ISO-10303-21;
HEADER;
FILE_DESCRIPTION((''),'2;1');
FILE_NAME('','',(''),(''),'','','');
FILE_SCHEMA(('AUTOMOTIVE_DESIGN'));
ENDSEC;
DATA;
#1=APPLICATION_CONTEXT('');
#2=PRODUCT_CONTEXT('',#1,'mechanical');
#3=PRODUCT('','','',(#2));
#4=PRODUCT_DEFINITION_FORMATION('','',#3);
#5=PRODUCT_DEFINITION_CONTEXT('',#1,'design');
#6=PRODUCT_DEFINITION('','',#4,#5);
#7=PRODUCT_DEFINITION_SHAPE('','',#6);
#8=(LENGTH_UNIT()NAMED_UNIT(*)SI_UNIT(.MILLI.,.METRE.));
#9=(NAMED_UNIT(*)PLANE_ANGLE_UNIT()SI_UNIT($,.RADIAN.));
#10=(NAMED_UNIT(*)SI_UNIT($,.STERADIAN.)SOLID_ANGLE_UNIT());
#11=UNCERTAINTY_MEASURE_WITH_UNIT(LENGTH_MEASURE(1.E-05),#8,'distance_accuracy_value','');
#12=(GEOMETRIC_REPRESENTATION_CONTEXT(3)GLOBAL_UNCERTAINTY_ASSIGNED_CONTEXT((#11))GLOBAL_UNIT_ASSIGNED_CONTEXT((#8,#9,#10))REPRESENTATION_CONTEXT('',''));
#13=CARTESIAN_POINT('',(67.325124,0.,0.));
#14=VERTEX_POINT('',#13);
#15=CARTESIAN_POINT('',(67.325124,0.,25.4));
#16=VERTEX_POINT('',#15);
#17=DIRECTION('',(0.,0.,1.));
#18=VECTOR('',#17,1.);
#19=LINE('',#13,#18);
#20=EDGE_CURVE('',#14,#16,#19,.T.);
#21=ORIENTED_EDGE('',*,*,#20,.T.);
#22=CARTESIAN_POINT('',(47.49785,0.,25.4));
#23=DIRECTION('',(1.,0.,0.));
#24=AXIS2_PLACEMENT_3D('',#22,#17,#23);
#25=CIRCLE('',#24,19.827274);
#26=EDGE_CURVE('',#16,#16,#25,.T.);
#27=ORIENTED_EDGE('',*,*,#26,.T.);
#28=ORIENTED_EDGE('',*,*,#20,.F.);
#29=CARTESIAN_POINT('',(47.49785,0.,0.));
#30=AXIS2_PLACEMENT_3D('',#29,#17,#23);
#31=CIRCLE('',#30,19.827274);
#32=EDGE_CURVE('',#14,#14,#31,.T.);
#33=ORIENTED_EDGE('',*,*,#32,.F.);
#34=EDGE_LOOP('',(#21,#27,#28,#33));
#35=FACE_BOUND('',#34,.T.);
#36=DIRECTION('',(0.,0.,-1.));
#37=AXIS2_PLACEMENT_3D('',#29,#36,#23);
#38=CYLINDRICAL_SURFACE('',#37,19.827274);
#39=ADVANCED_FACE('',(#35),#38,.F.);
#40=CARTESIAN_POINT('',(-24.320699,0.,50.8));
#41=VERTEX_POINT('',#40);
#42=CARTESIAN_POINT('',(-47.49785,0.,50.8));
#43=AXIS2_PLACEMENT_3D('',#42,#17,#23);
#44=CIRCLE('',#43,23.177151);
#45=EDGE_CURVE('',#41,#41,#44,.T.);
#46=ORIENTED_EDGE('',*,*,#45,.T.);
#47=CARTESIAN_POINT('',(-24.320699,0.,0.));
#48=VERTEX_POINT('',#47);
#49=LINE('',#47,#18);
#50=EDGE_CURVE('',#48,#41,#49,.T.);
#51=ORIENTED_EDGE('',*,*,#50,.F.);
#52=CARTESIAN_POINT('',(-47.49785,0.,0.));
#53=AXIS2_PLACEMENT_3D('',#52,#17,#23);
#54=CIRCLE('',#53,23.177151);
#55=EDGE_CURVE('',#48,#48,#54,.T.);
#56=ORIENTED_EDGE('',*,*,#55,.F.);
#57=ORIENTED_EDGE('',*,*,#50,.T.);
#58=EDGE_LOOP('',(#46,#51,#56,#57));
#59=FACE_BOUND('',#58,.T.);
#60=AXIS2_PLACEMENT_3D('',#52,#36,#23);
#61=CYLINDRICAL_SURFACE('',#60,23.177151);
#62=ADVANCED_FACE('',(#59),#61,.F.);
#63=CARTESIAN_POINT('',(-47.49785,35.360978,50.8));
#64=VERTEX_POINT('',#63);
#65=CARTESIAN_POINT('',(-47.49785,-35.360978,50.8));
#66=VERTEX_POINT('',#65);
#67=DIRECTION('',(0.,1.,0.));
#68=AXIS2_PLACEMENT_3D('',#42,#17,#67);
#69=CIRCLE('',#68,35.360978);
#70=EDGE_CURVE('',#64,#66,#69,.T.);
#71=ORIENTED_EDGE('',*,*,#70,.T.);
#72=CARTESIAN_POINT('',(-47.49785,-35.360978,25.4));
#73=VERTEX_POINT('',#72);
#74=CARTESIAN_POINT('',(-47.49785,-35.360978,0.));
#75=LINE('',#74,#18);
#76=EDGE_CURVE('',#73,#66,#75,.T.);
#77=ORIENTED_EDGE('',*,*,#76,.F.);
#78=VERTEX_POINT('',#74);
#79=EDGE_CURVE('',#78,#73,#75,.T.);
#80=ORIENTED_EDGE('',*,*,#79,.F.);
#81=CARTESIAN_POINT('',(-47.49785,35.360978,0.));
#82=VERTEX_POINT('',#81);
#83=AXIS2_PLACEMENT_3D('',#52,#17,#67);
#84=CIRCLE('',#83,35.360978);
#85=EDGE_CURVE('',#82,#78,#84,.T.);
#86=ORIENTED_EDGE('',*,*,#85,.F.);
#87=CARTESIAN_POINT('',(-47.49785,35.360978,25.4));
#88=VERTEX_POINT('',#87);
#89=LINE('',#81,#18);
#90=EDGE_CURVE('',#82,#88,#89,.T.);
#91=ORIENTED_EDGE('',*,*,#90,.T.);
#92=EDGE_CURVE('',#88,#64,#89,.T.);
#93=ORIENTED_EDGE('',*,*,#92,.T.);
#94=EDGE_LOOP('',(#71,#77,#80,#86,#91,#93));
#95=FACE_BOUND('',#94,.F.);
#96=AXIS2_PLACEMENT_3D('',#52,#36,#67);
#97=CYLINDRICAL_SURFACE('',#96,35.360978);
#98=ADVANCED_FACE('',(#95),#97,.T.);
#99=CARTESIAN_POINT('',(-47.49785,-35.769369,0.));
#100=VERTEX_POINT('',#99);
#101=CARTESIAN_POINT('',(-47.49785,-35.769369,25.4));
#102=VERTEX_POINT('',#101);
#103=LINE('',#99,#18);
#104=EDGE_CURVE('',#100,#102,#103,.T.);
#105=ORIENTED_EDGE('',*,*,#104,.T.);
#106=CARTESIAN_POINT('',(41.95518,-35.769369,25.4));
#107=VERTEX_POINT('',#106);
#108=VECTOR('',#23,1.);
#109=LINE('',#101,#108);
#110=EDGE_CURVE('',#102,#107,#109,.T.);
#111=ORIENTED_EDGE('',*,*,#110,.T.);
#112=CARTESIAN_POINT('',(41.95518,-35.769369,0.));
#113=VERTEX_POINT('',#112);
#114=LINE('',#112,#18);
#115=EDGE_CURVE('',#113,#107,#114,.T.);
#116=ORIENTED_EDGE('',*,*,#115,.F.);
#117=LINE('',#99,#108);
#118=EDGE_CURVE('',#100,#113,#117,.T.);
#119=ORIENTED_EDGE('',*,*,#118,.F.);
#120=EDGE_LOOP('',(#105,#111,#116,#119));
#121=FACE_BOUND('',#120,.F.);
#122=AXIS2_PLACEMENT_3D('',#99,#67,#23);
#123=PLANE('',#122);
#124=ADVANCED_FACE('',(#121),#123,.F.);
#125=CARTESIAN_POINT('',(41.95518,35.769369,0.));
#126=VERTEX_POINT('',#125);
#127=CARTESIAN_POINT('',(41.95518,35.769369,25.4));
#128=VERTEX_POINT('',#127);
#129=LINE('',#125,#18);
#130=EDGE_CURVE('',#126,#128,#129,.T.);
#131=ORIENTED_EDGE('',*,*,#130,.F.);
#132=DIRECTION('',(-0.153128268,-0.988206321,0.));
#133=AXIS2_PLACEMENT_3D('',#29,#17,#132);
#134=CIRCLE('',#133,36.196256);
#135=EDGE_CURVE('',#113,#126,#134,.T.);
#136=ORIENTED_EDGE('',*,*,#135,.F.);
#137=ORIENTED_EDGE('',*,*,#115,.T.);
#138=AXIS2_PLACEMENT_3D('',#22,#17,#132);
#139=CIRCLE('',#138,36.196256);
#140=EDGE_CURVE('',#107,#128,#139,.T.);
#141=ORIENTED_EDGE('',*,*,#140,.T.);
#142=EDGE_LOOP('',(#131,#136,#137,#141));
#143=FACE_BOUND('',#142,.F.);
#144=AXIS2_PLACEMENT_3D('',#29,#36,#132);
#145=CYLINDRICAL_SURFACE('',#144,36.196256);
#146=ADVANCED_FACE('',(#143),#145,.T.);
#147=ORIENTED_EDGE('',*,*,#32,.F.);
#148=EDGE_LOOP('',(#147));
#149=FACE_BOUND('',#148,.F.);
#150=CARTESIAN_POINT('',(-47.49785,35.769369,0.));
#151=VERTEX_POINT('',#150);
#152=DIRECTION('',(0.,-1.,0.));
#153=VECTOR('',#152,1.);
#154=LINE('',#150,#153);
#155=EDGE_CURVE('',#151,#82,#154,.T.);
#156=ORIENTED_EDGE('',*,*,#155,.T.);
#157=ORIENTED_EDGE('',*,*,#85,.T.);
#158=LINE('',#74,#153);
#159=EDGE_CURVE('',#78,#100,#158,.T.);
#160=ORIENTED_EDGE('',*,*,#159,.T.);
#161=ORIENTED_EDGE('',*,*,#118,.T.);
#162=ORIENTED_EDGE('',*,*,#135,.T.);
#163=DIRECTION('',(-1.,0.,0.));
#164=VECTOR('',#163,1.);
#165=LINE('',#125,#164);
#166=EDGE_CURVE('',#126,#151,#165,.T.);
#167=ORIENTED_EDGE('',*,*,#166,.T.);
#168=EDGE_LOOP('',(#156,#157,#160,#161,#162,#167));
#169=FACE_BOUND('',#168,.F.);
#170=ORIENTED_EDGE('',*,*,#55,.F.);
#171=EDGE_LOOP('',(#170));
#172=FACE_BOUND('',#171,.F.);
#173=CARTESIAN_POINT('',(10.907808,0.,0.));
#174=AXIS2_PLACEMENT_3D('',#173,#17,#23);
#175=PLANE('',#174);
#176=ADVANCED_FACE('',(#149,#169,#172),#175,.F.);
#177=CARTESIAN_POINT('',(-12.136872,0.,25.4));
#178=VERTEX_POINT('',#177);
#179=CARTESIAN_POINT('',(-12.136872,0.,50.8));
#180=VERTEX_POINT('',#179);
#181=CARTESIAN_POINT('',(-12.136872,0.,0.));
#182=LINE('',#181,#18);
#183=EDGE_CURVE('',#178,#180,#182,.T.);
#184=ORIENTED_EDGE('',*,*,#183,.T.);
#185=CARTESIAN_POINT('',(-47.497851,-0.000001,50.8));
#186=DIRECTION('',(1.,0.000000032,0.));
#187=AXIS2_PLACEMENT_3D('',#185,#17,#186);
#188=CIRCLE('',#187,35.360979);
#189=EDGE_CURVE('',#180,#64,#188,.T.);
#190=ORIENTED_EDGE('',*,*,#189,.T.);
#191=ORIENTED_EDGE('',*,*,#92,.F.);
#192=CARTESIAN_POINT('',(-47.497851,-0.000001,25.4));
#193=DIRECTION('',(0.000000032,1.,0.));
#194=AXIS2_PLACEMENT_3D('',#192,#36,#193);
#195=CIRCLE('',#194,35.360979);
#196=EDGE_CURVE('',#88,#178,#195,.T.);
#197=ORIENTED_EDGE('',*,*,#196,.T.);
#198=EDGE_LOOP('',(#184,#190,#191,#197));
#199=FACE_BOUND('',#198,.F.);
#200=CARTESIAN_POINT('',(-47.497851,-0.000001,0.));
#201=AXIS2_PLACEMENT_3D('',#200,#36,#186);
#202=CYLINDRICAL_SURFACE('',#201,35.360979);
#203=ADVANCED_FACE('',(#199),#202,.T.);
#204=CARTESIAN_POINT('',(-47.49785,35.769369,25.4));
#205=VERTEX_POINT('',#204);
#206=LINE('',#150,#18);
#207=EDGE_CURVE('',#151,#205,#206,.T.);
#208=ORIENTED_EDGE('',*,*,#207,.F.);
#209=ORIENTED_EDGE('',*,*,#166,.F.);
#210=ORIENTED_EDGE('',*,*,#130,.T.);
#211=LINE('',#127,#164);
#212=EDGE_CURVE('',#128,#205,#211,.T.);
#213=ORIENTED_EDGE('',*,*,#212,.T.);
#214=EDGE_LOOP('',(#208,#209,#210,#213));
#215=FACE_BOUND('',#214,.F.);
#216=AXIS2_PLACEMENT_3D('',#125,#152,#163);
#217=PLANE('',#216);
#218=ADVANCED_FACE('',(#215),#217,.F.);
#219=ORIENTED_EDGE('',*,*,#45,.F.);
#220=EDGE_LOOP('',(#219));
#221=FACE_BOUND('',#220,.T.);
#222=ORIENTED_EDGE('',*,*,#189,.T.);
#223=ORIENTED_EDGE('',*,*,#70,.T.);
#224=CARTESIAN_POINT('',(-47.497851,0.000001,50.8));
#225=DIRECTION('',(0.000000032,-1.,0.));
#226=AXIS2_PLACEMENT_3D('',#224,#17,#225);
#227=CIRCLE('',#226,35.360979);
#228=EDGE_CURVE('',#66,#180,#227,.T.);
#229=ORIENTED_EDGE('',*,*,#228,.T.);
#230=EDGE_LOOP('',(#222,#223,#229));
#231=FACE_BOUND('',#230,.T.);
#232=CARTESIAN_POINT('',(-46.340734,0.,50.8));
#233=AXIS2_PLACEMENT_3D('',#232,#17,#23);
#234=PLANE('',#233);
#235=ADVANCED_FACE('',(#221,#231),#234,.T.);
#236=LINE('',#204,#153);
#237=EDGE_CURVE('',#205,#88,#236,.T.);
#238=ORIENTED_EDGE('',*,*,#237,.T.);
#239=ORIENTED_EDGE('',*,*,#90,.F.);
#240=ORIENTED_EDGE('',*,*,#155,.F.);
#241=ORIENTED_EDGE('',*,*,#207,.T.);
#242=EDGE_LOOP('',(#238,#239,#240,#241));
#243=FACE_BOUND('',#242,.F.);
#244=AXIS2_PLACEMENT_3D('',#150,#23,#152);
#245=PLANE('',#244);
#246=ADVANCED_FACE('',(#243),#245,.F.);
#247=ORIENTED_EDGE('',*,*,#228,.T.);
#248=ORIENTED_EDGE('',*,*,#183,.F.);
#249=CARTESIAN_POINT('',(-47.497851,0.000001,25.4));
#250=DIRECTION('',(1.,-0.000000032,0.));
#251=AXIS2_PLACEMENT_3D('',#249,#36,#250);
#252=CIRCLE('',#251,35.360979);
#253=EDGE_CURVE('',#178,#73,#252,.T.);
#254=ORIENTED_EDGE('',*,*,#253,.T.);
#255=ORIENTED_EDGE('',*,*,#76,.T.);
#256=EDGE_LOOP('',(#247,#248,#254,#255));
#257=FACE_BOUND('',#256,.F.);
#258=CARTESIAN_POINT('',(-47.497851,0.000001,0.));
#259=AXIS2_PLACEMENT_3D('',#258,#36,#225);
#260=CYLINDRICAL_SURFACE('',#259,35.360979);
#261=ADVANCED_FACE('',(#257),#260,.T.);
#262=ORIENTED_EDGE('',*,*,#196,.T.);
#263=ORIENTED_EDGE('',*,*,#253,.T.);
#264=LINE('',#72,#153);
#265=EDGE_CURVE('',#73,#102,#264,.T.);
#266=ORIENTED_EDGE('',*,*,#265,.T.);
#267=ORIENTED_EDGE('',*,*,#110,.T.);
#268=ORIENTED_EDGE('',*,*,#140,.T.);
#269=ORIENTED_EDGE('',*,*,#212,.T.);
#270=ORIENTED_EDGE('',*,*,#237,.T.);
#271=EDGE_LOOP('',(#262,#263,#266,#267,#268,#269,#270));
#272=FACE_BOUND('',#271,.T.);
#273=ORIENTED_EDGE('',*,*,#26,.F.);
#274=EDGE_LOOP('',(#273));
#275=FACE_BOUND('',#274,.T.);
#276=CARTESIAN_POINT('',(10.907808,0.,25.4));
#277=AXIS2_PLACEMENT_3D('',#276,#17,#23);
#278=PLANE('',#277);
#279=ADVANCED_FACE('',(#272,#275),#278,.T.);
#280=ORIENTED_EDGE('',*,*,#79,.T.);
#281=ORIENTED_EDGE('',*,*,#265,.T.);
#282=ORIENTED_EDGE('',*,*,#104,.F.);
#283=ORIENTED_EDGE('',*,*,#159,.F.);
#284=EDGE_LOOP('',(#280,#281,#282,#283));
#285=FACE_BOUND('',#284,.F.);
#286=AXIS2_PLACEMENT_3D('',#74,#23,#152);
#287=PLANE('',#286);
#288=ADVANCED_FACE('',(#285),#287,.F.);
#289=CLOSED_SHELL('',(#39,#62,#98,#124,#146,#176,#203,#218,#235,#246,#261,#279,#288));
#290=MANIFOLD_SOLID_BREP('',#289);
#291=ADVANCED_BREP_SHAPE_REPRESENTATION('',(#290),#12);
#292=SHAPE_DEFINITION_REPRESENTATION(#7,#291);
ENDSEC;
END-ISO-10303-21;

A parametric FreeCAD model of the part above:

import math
import FreeCAD as App
import Part
import Sketcher
Q = App.Units.Quantity

doc = App.newDocument("Part")
params = doc.addObject("Spreadsheet::Sheet", "Params")
for row, (alias, value) in enumerate([
    ("pad1_length", "2 in"),
    ("pad2_length", "1 in"),
], start=1):
    params.set(f"A{row}", alias)
    params.set(f"B{row}", "=" + value)
    params.setAlias(f"B{row}", alias)

body = doc.addObject("PartDesign::Body", "Body")

# Sketch on XY plane
sketch1 = doc.addObject("Sketcher::SketchObject", "Sketch")
body.addObject(sketch1)
sketch1.AttachmentSupport = (doc.XY_Plane, [""])
sketch1.MapMode = "FlatFace"
sketch1.addGeometry([
    Part.ArcOfCircle(Part.Circle(App.Vector(-47, 0, 0), App.Vector(0, 0, 1), 35), math.radians(0), math.radians(90)),
    Part.ArcOfCircle(Part.Circle(App.Vector(-47, 0, 0), App.Vector(0, 0, 1), 35), math.radians(90), math.radians(270)),
    Part.ArcOfCircle(Part.Circle(App.Vector(-47, 0, 0), App.Vector(0, 0, 1), 35), math.radians(-90), math.radians(0)),
    Part.Circle(App.Vector(-47, 0, 0), App.Vector(0, 0, 1), 23),
], False)
sketch1.addConstraint([
    Sketcher.Constraint("Tangent", 0, 2, 1, 1),
    Sketcher.Constraint("Tangent", 1, 2, 2, 1),
    Sketcher.Constraint("Tangent", 2, 2, 0, 1),
    Sketcher.Constraint("Coincident", 3, 3, 0, 3),
    Sketcher.Constraint("Symmetric", 0, 2, 1, 2, -1),
    Sketcher.Constraint("PointOnObject", 2, 2, -1),
    Sketcher.Constraint("Vertical", 3, 3, 0, 2),
    Sketcher.Constraint("Diameter", 3, Q("46.354302 mm")),
    Sketcher.Constraint("Radius", 0, Q("35.360979 mm")),
    Sketcher.Constraint("DistanceX", 0, 3, -1, 1, Q("47.497851 mm")),
])
pad1 = doc.addObject("PartDesign::Pad", "Pad")
body.addObject(pad1)
pad1.Profile = sketch1
pad1.setExpression("Length", "Params.pad1_length")

# Sketch on XY plane
sketch2 = doc.addObject("Sketcher::SketchObject", "Sketch001")
body.addObject(sketch2)
sketch2.AttachmentSupport = (doc.XY_Plane, [""])
sketch2.MapMode = "FlatFace"
sketch2.addGeometry([
    Part.LineSegment(App.Vector(41.96, 35.77, 0), App.Vector(-47.5, 35.77, 0)),  # 0
    Part.LineSegment(App.Vector(-47.5, 35.77, 0), App.Vector(-47.5, 35.36, 0)),  # 1
    Part.ArcOfCircle(Part.Circle(App.Vector(-47.5, 0, 0), App.Vector(0, 0, 1), 35.36), math.radians(0), math.radians(90)),  # 2
    Part.ArcOfCircle(Part.Circle(App.Vector(-47.5, 0, 0), App.Vector(0, 0, 1), 35.36), math.radians(-90), math.radians(0)),  # 3
    Part.LineSegment(App.Vector(-47.5, -35.36, 0), App.Vector(-47.5, -35.77, 0)),  # 4
    Part.LineSegment(App.Vector(-47.5, -35.77, 0), App.Vector(41.96, -35.77, 0)),  # 5
    Part.ArcOfCircle(Part.Circle(App.Vector(47.5, 0, 0), App.Vector(0, 0, 1), 36.2), math.radians(-99), math.radians(99)),  # 6
    Part.Circle(App.Vector(47.5, 0, 0), App.Vector(0, 0, 1), 19.83),  # 7
], False)
sketch2.addConstraint([
    Sketcher.Constraint("Coincident", 0, 2, 1, 1),
    Sketcher.Constraint("Coincident", 1, 2, 2, 2),
    Sketcher.Constraint("Tangent", 2, 1, 3, 2),
    Sketcher.Constraint("Coincident", 3, 1, 4, 1),
    Sketcher.Constraint("Coincident", 4, 2, 5, 1),
    Sketcher.Constraint("Coincident", 5, 2, 6, 1),
    Sketcher.Constraint("Coincident", 6, 2, 0, 1),
    Sketcher.Constraint("Horizontal", 0),
    Sketcher.Constraint("Vertical", 1),
    Sketcher.Constraint("Vertical", 4),
    Sketcher.Constraint("Horizontal", 5),
    Sketcher.Constraint("Coincident", 7, 3, 6, 3),
    Sketcher.Constraint("Equal", 2, 3),
    Sketcher.Constraint("Symmetric", 2, 3, 6, 3, -1, 1),
    Sketcher.Constraint("Symmetric", 1, 2, 3, 1, -1),
    Sketcher.Constraint("PointOnObject", 2, 1, -1),
    Sketcher.Constraint("Vertical", 3, 3, 0, 2),
    Sketcher.Constraint("Vertical", 5, 2, 6, 2),
    Sketcher.Constraint("Radius", 2, Q("35.360979 mm")),
    Sketcher.Constraint("Diameter", 7, Q("39.654548 mm")),
    Sketcher.Constraint("Radius", 6, Q("36.196256 mm")),
    Sketcher.Constraint("DistanceX", 0, 2, 0, 1, Q("89.45303 mm")),
    Sketcher.Constraint("DistanceY", 1, 2, 1, 1, Q("0.408391 mm")),
])
pad2 = doc.addObject("PartDesign::Pad", "Pad001")
body.addObject(pad2)
pad2.Profile = sketch2
pad2.setExpression("Length", "Params.pad2_length")

doc.recompute()
